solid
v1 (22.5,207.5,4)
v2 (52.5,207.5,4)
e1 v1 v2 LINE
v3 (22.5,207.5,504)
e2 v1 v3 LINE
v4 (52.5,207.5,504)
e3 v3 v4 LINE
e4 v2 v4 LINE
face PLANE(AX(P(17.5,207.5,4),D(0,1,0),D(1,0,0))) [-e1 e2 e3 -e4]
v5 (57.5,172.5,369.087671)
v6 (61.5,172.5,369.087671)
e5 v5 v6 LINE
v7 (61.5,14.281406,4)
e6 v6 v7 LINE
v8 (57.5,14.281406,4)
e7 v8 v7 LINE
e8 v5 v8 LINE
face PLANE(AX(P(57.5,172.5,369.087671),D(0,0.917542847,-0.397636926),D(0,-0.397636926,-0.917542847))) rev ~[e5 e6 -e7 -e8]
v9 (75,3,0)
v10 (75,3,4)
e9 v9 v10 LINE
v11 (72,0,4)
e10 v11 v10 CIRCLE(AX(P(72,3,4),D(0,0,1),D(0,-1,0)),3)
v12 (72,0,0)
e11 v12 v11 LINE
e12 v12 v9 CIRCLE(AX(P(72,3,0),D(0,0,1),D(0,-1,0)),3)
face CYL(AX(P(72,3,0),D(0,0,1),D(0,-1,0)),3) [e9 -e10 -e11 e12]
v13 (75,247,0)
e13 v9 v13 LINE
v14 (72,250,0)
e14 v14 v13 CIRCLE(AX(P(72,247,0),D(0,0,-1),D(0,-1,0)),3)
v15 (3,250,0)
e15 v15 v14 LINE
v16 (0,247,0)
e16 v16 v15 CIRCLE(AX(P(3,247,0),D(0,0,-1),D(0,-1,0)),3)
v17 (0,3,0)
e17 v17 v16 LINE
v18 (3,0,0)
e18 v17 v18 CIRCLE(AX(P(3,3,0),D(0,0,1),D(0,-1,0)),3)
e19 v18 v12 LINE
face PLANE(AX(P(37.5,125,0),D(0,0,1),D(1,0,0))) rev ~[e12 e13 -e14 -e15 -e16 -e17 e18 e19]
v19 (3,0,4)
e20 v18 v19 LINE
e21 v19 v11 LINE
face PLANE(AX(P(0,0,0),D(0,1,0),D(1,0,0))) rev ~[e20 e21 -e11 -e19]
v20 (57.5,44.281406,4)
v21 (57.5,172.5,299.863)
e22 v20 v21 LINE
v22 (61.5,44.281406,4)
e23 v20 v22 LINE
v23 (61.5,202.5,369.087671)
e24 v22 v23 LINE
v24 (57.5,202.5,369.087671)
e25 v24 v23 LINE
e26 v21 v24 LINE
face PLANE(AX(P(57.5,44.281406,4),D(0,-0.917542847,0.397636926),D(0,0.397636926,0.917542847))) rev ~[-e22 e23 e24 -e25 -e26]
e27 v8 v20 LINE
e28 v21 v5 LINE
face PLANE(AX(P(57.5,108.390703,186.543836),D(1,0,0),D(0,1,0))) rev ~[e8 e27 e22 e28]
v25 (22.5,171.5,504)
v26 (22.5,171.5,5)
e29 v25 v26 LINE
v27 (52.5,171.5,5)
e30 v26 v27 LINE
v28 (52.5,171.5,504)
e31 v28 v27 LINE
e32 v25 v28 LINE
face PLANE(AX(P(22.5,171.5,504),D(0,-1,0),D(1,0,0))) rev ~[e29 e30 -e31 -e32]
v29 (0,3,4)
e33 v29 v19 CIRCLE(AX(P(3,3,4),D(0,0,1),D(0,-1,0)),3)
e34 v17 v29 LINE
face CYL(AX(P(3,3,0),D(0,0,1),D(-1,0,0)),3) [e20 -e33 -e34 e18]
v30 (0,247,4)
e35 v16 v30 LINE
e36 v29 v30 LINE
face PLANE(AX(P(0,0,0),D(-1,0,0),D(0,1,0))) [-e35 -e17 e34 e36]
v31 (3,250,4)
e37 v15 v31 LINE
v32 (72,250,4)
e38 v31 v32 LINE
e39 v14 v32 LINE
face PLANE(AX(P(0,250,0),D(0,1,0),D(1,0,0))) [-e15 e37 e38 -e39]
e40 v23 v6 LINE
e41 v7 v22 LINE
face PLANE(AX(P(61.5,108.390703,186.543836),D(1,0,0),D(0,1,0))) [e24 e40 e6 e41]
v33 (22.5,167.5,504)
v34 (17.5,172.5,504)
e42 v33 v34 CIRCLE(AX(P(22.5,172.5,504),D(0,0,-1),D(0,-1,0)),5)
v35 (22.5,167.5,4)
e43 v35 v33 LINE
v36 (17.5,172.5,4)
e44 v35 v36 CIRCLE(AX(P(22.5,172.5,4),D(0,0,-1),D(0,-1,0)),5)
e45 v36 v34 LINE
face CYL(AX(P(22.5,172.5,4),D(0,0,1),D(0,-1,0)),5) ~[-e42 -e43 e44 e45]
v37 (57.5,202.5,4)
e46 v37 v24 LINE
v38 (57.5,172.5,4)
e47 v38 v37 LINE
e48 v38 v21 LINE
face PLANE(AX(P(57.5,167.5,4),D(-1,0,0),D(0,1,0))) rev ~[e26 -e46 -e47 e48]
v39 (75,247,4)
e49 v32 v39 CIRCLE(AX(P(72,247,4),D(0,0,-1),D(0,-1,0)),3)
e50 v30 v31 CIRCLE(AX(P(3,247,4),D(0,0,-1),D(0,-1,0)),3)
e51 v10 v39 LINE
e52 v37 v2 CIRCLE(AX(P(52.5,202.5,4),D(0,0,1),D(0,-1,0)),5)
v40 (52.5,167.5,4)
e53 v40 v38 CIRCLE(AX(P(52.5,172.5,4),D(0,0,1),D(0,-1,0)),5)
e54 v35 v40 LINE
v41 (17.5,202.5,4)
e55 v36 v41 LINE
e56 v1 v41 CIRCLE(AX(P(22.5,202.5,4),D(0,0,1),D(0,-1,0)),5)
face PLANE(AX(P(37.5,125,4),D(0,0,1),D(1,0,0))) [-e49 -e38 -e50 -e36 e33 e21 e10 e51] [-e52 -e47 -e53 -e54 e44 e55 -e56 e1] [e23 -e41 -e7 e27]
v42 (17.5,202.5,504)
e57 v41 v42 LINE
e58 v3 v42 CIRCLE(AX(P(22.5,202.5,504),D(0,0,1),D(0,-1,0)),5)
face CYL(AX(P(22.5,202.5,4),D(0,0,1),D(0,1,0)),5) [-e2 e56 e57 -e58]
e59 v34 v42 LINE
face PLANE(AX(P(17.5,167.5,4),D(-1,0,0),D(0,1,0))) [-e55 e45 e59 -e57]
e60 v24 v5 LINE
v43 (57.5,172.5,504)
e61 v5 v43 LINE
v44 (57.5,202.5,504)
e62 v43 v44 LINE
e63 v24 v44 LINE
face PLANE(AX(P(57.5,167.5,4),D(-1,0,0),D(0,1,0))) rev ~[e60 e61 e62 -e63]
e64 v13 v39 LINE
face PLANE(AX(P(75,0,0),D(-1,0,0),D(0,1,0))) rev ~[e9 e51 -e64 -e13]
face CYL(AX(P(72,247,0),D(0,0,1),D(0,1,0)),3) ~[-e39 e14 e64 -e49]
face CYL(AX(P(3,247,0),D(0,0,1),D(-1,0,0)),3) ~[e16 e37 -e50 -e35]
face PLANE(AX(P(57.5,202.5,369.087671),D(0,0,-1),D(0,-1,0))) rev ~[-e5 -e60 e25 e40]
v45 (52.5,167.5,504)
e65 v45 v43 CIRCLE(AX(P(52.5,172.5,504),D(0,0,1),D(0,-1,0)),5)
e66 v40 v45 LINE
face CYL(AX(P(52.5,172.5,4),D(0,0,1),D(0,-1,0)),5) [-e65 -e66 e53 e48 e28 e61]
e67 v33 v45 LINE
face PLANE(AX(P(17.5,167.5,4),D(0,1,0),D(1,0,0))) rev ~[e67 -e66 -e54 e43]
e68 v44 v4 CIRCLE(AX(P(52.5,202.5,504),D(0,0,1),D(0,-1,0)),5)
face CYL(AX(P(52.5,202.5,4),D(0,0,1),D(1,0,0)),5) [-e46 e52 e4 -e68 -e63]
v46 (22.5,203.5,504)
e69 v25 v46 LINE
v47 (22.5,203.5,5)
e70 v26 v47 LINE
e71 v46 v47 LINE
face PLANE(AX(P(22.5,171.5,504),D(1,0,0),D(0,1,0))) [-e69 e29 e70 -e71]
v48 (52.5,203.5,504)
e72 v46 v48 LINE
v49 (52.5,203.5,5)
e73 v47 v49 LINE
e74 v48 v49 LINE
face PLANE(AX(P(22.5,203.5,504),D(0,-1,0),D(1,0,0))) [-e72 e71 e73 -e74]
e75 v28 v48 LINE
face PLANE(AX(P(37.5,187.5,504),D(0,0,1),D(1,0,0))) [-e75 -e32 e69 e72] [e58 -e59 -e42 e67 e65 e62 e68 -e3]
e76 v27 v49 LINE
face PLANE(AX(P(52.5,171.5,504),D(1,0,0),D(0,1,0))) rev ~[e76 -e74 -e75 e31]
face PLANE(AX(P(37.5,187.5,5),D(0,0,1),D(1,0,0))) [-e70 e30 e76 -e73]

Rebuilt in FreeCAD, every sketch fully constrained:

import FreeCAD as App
import Part
import Sketcher
from FreeCAD import Vector
Q = App.Units.Quantity


def edges_at(feature, points):
    """Names of the edges that pass closest to the given points."""
    edges = feature.Shape.Edges
    near = lambda p: min(range(len(edges)), key=lambda i: edges[i].distToShape(Part.Vertex(*p))[0])
    return sorted({f"Edge{near(p) + 1}" for p in points})

doc = App.newDocument("Part")
params = doc.addObject("Spreadsheet::Sheet", "Params")
for row, (alias, value) in enumerate([
    ("sketch1_width", "75 mm"),
    ("sketch1_height", "250 mm"),
    ("pad1_length", "4 mm"),
    ("sketch2_width", "40 mm"),
    ("pad2_length", "500 mm"),
    ("sketch3_width", "30 mm"),
    ("sketch3_height", "32 mm"),
    ("pocket1_length", "499 mm"),
    ("fillet_radius", "5 mm"),
    ("fillet2_radius", "3 mm"),
    ("sketch4_width", "30 mm"),
    ("pad3_length", "4 mm"),
], start=1):
    params.set(f"A{row}", alias)
    params.set(f"B{row}", "=" + value)
    params.setAlias(f"B{row}", alias)

body = doc.addObject("PartDesign::Body", "Body")

# Sketch on XY plane
sketch1 = body.newObject("Sketcher::SketchObject", "Sketch")
sketch1.AttachmentSupport = (doc.getObject("XY_Plane"), [""])
sketch1.MapMode = "FlatFace"
sketch1.addGeometry([
    Part.LineSegment(Vector(0, 250, 0), Vector(0, 0, 0)),
    Part.LineSegment(Vector(0, 0, 0), Vector(75, 0, 0)),
    Part.LineSegment(Vector(75, 0, 0), Vector(75, 250, 0)),
    Part.LineSegment(Vector(75, 250, 0), Vector(0, 250, 0)),
], False)
sketch1.addConstraint([
    Sketcher.Constraint("Coincident", 0, 2, 1, 1),
    Sketcher.Constraint("Coincident", 1, 2, 2, 1),
    Sketcher.Constraint("Coincident", 2, 2, 3, 1),
    Sketcher.Constraint("Coincident", 3, 2, 0, 1),
    Sketcher.Constraint("Vertical", 0),
    Sketcher.Constraint("Horizontal", 1),
    Sketcher.Constraint("Vertical", 2),
    Sketcher.Constraint("Horizontal", 3),
    Sketcher.Constraint("Coincident", 0, 2, -1, 1),
    Sketcher.Constraint("DistanceX", 1, 1, 1, 2, Q("75 mm")),
    Sketcher.Constraint("DistanceY", 0, 2, 0, 1, Q("250 mm")),
])
sketch1.setExpression("Constraints[9]", "Params.sketch1_width")
sketch1.setExpression("Constraints[10]", "Params.sketch1_height")
pad1 = body.newObject("PartDesign::Pad", "Pad")
pad1.Profile = sketch1
pad1.setExpression("Length", "Params.pad1_length")

# Sketch on XY plane
sketch2 = body.newObject("Sketcher::SketchObject", "Sketch001")
sketch2.AttachmentSupport = (doc.getObject("XY_Plane"), [""])
sketch2.MapMode = "FlatFace"
sketch2.AttachmentOffset = App.Placement(Vector(0, 0, 4), App.Rotation())
sketch2.addGeometry([
    Part.LineSegment(Vector(17.5, 207.5, 0), Vector(17.5, 167.5, 0)),
    Part.LineSegment(Vector(17.5, 167.5, 0), Vector(57.5, 167.5, 0)),
    Part.LineSegment(Vector(57.5, 167.5, 0), Vector(57.5, 207.5, 0)),
    Part.LineSegment(Vector(57.5, 207.5, 0), Vector(17.5, 207.5, 0)),
], False)
sketch2.addConstraint([
    Sketcher.Constraint("Coincident", 0, 2, 1, 1),
    Sketcher.Constraint("Coincident", 1, 2, 2, 1),
    Sketcher.Constraint("Coincident", 2, 2, 3, 1),
    Sketcher.Constraint("Coincident", 3, 2, 0, 1),
    Sketcher.Constraint("Vertical", 0),
    Sketcher.Constraint("Horizontal", 1),
    Sketcher.Constraint("Vertical", 2),
    Sketcher.Constraint("Horizontal", 3),
    Sketcher.Constraint("Equal", 3, 0),
    Sketcher.Constraint("DistanceX", 1, 1, 1, 2, Q("40 mm")),
    Sketcher.Constraint("DistanceX", -1, 1, 0, 2, Q("17.5 mm")),
    Sketcher.Constraint("DistanceY", -1, 1, 0, 2, Q("167.5 mm")),
])
sketch2.setExpression("Constraints[9]", "Params.sketch2_width")
pad2 = body.newObject("PartDesign::Pad", "Pad001")
pad2.Profile = sketch2
pad2.setExpression("Length", "Params.pad2_length")

# Sketch on XY plane
sketch3 = body.newObject("Sketcher::SketchObject", "Sketch002")
sketch3.AttachmentSupport = (doc.getObject("XY_Plane"), [""])
sketch3.MapMode = "FlatFace"
sketch3.AttachmentOffset = App.Placement(Vector(0, 0, 504), App.Rotation())
sketch3.addGeometry([
    Part.LineSegment(Vector(22.5, 203.5, 0), Vector(22.5, 171.5, 0)),
    Part.LineSegment(Vector(22.5, 171.5, 0), Vector(52.5, 171.5, 0)),
    Part.LineSegment(Vector(52.5, 171.5, 0), Vector(52.5, 203.5, 0)),
    Part.LineSegment(Vector(52.5, 203.5, 0), Vector(22.5, 203.5, 0)),
], False)
sketch3.addConstraint([
    Sketcher.Constraint("Coincident", 0, 2, 1, 1),
    Sketcher.Constraint("Coincident", 1, 2, 2, 1),
    Sketcher.Constraint("Coincident", 2, 2, 3, 1),
    Sketcher.Constraint("Coincident", 3, 2, 0, 1),
    Sketcher.Constraint("Vertical", 0),
    Sketcher.Constraint("Horizontal", 1),
    Sketcher.Constraint("Vertical", 2),
    Sketcher.Constraint("Horizontal", 3),
    Sketcher.Constraint("DistanceX", 1, 1, 1, 2, Q("30 mm")),
    Sketcher.Constraint("DistanceY", 0, 2, 0, 1, Q("32 mm")),
    Sketcher.Constraint("DistanceX", -1, 1, 0, 2, Q("22.5 mm")),
    Sketcher.Constraint("DistanceY", -1, 1, 0, 2, Q("171.5 mm")),
])
sketch3.setExpression("Constraints[8]", "Params.sketch3_width")
sketch3.setExpression("Constraints[9]", "Params.sketch3_height")
pocket1 = body.newObject("PartDesign::Pocket", "Pocket")
pocket1.Profile = sketch3
pocket1.setExpression("Length", "Params.pocket1_length")
doc.recompute()

fillet = body.newObject("PartDesign::Fillet", "Fillet")
fillet.Base = (pocket1, edges_at(pocket1, [
    (57.5, 167.5, 254),
    (57.5, 207.5, 254),
    (17.5, 207.5, 254),
    (17.5, 167.5, 254),
]))
fillet.setExpression("Radius", "Params.fillet_radius")
doc.recompute()

fillet2 = body.newObject("PartDesign::Fillet", "Fillet001")
fillet2.Base = (fillet, edges_at(fillet, [
    (0, 250, 2),
    (0, 0, 2),
    (75, 0, 2),
    (75, 250, 2),
]))
fillet2.setExpression("Radius", "Params.fillet2_radius")

# Sketch on YZ plane
sketch4 = body.newObject("Sketcher::SketchObject", "Sketch003")
sketch4.AttachmentSupport = (doc.getObject("YZ_Plane"), [""])
sketch4.MapMode = "FlatFace"
sketch4.AttachmentOffset = App.Placement(Vector(0, 0, 57.5), App.Rotation())
sketch4.addGeometry([
    Part.LineSegment(Vector(172.5, 369.087671, 0), Vector(14.281406, 4, 0)),
    Part.LineSegment(Vector(14.281406, 4, 0), Vector(44.281406, 4, 0)),
    Part.LineSegment(Vector(44.281406, 4, 0), Vector(202.5, 369.087671, 0)),
    Part.LineSegment(Vector(202.5, 369.087671, 0), Vector(172.5, 369.087671, 0)),
], False)
sketch4.addConstraint([
    Sketcher.Constraint("Coincident", 0, 2, 1, 1),
    Sketcher.Constraint("Coincident", 1, 2, 2, 1),
    Sketcher.Constraint("Coincident", 2, 2, 3, 1),
    Sketcher.Constraint("Coincident", 3, 2, 0, 1),
    Sketcher.Constraint("Horizontal", 1),
    Sketcher.Constraint("Horizontal", 3),
    Sketcher.Constraint("Parallel", 0, 2),
    Sketcher.Constraint("DistanceX", 1, 1, 1, 2, Q("30 mm")),
    Sketcher.Constraint("DistanceY", -1, 1, 0, 2, Q("4 mm")),
    Sketcher.Constraint("DistanceX", -1, 1, 2, 2, Q("202.5 mm")),
    Sketcher.Constraint("DistanceY", -1, 1, 2, 2, Q("369.087671 mm")),
    Sketcher.Constraint("Distance", 0, Q("397.897136 mm")),
])
sketch4.setExpression("Constraints[7]", "Params.sketch4_width")
pad3 = body.newObject("PartDesign::Pad", "Pad002")
pad3.Profile = sketch4
pad3.setExpression("Length", "Params.pad3_length")

doc.recompute()
